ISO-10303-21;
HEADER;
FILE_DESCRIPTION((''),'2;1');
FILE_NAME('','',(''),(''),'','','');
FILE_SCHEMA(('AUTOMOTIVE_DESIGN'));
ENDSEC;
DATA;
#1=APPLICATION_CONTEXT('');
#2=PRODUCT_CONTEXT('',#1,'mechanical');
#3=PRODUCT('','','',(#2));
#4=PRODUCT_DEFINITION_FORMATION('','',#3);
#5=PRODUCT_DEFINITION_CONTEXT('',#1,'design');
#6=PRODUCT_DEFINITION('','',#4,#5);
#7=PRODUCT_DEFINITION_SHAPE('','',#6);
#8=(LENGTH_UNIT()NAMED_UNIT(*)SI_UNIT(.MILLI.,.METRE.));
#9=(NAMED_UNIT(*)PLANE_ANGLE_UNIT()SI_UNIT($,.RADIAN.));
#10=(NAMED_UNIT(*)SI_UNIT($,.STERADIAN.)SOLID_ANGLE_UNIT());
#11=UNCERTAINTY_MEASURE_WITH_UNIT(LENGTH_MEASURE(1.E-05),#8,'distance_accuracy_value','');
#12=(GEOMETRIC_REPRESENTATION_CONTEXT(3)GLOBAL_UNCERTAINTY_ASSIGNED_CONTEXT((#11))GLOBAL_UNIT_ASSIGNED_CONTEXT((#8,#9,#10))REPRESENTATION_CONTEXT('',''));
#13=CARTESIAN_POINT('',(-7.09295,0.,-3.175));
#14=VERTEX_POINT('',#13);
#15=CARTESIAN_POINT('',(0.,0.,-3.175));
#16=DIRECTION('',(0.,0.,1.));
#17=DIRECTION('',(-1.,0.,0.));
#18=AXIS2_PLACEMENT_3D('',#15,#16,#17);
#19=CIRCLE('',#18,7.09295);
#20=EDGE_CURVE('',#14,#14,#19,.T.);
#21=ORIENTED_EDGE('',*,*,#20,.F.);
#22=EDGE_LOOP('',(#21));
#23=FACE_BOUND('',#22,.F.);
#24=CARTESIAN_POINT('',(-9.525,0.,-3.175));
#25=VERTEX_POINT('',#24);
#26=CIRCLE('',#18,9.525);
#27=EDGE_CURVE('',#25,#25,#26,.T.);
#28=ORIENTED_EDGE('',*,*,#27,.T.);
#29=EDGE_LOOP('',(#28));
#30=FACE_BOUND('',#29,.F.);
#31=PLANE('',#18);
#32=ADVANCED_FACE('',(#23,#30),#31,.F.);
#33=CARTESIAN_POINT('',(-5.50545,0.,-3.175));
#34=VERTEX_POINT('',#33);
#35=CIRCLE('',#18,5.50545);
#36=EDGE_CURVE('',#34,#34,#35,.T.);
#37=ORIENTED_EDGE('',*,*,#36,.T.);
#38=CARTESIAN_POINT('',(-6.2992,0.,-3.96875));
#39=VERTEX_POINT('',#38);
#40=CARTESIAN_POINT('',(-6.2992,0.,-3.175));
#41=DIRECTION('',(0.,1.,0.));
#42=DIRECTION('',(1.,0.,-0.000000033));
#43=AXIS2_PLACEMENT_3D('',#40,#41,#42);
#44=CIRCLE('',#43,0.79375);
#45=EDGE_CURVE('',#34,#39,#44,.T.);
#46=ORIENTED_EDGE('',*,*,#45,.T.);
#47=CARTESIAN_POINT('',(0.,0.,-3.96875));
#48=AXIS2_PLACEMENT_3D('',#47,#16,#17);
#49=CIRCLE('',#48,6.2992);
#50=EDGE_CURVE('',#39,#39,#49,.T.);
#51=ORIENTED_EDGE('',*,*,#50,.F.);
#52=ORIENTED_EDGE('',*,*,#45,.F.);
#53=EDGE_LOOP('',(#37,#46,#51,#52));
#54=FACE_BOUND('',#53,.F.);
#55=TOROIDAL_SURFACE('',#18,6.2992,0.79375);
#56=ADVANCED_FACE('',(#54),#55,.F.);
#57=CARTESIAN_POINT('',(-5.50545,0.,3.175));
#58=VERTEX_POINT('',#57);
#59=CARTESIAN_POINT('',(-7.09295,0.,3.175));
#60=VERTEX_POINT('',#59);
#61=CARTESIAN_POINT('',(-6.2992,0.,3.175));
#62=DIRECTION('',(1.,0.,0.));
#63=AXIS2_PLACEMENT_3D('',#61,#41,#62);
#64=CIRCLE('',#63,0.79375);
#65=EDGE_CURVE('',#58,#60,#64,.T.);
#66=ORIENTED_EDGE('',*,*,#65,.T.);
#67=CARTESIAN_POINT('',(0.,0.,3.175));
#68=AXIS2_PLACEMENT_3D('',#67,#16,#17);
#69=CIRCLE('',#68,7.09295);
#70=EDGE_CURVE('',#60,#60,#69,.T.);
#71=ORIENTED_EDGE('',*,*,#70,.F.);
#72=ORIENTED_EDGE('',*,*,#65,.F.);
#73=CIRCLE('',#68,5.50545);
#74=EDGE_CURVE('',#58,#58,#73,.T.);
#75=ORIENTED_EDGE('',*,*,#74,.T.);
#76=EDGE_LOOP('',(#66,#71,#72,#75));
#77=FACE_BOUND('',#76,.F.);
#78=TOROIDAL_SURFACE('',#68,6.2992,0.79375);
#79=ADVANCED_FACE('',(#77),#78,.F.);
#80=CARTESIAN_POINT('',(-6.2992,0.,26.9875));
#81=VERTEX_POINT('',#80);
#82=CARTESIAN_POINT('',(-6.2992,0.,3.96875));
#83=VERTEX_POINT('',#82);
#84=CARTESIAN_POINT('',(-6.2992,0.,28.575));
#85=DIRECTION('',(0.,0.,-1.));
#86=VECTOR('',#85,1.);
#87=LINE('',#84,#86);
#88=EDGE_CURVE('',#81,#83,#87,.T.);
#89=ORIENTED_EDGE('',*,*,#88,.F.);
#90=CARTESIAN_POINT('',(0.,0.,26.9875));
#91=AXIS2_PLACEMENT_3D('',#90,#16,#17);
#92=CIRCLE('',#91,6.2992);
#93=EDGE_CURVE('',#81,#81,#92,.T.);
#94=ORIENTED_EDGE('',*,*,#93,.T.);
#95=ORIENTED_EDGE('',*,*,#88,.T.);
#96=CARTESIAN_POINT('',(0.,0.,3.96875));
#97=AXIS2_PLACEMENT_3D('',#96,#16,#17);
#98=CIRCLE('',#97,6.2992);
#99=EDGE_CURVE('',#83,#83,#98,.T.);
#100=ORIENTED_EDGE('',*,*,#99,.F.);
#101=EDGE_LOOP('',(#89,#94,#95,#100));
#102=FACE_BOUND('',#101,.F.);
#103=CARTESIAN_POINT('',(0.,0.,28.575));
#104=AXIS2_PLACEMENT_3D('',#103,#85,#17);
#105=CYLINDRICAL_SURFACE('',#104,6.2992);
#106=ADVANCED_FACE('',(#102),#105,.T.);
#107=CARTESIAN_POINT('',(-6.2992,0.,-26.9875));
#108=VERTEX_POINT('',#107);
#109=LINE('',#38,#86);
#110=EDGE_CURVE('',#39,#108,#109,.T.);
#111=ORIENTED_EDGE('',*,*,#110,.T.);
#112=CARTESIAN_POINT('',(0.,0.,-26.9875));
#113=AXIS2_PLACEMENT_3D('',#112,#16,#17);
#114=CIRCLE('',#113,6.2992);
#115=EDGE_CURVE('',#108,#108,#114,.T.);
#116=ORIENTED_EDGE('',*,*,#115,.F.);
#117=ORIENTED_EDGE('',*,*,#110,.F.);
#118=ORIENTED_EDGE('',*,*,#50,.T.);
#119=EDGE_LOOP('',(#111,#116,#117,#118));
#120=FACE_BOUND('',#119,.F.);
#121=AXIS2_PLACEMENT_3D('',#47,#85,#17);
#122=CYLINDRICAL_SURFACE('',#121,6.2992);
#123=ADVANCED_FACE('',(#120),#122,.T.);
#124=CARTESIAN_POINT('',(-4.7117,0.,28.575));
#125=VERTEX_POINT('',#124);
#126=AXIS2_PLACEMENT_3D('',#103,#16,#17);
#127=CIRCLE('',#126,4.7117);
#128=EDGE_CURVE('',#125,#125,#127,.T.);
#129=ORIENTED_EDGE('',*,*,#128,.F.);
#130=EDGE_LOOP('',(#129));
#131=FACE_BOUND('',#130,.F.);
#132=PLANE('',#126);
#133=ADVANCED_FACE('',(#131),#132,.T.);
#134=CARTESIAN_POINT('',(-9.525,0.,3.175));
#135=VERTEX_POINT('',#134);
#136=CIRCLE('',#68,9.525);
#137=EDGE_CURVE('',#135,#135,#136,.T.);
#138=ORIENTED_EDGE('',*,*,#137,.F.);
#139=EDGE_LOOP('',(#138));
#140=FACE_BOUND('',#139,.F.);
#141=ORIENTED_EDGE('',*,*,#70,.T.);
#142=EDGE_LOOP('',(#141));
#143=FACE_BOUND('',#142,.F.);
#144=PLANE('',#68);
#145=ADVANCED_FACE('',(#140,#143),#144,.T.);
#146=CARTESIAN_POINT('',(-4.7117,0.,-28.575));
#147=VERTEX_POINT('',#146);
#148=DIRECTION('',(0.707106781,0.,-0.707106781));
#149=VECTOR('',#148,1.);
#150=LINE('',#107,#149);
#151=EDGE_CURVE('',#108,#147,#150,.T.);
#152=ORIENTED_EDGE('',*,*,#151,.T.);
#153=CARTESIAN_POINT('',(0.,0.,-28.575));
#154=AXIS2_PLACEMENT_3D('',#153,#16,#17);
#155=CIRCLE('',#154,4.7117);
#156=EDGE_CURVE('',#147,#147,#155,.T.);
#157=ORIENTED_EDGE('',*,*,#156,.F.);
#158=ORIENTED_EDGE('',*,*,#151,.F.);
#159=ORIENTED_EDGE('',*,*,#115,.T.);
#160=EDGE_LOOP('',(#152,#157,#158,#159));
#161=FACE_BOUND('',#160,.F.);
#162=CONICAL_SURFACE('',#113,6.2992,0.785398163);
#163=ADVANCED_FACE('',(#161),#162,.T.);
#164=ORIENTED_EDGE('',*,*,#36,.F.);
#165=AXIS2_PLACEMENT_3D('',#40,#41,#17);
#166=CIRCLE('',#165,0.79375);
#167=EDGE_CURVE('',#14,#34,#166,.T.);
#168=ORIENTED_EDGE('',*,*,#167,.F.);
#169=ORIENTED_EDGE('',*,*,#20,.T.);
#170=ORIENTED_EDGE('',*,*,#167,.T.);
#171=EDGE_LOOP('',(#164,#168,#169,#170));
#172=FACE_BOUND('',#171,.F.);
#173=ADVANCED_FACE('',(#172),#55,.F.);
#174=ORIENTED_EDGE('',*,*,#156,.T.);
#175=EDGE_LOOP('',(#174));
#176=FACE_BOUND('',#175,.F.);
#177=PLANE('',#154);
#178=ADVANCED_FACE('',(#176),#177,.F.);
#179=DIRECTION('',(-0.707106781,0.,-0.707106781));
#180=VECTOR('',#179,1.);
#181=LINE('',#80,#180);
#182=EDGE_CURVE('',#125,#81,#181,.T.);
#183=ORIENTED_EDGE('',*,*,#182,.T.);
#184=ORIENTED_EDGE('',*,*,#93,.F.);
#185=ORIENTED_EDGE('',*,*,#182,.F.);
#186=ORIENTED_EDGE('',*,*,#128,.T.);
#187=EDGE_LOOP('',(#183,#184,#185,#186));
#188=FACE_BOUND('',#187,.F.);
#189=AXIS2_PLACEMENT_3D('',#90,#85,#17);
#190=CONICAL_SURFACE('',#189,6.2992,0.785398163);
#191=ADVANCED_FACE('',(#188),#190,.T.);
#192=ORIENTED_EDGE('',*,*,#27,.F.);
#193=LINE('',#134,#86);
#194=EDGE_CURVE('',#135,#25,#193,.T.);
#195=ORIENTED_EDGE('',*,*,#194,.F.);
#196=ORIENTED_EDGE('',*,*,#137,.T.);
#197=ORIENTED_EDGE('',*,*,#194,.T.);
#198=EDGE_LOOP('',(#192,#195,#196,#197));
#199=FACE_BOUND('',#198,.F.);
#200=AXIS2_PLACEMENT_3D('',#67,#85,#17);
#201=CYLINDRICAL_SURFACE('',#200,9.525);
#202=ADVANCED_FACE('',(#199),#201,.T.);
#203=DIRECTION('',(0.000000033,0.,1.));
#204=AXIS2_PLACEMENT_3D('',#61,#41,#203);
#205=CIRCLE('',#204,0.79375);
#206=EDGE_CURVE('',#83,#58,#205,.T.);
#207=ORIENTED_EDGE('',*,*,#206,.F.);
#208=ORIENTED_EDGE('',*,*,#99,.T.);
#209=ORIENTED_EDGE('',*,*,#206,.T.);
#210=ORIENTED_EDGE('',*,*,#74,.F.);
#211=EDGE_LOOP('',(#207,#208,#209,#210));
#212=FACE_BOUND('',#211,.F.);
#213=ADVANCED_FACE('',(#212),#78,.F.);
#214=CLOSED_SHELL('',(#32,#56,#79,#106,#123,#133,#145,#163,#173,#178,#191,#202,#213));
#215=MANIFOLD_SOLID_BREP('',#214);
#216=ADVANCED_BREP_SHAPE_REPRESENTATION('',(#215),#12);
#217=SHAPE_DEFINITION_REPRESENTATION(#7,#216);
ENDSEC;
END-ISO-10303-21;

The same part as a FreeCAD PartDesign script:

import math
import FreeCAD as App
import Part
import Sketcher
from FreeCAD import Vector
Q = App.Units.Quantity


def edges_at(feature, points):
    """Names of the edges that pass closest to the given points."""
    edges = feature.Shape.Edges
    near = lambda p: min(range(len(edges)), key=lambda i: edges[i].distToShape(Part.Vertex(*p))[0])
    return sorted({f"Edge{near(p) + 1}" for p in points})

doc = App.newDocument("Part")
body = doc.addObject("PartDesign::Body", "Body")

# Sketch on XZ plane
sketch1 = body.newObject("Sketcher::SketchObject", "Sketch")
sketch1.AttachmentSupport = (doc.getObject("XZ_Plane"), [""])
sketch1.MapMode = "FlatFace"
sketch1.addGeometry(Part.LineSegment(Vector(-9.5, 3.2, 0), Vector(-9.5, -3.2, 0)), False)
sketch1.addGeometry(Part.LineSegment(Vector(-9.5, -3.2, 0), Vector(-7.1, -3.2, 0)), False)
sketch1.addGeometry(Part.ArcOfCircle(Part.Circle(Vector(-6.3, -3.2, 0), Vector(0, 0, 1), 0.8), math.radians(0), math.radians(180)), False)
sketch1.addGeometry(Part.ArcOfCircle(Part.Circle(Vector(-6.3, -3.2, 0), Vector(0, 0, 1), 0.8), math.radians(-90), math.radians(0)), False)
sketch1.addGeometry(Part.LineSegment(Vector(-6.3, -4, 0), Vector(-6.3, -28.6, 0)), False)
sketch1.addGeometry(Part.LineSegment(Vector(-6.3, -28.6, 0), Vector(0, -28.6, 0)), False)
sketch1.addGeometry(Part.LineSegment(Vector(0, -28.6, 0), Vector(0, 28.6, 0)), False)
sketch1.addGeometry(Part.LineSegment(Vector(0, 28.6, 0), Vector(-6.3, 28.6, 0)), False)
sketch1.addGeometry(Part.LineSegment(Vector(-6.3, 28.6, 0), Vector(-6.3, 4, 0)), False)
sketch1.addGeometry(Part.ArcOfCircle(Part.Circle(Vector(-6.3, 3.2, 0), Vector(0, 0, 1), 0.8), math.radians(0), math.radians(90)), False)
sketch1.addGeometry(Part.ArcOfCircle(Part.Circle(Vector(-6.3, 3.2, 0), Vector(0, 0, 1), 0.8), math.radians(180), math.radians(360)), False)
sketch1.addGeometry(Part.LineSegment(Vector(-7.1, 3.2, 0), Vector(-9.5, 3.2, 0)), False)
sketch1.addConstraint(Sketcher.Constraint("Coincident", 0, 2, 1, 1))
sketch1.addConstraint(Sketcher.Constraint("Coincident", 1, 2, 2, 2))
sketch1.addConstraint(Sketcher.Constraint("Tangent", 2, 1, 3, 2))
sketch1.addConstraint(Sketcher.Constraint("Coincident", 3, 1, 4, 1))
sketch1.addConstraint(Sketcher.Constraint("Coincident", 4, 2, 5, 1))
sketch1.addConstraint(Sketcher.Constraint("Coincident", 5, 2, 6, 1))
sketch1.addConstraint(Sketcher.Constraint("Coincident", 6, 2, 7, 1))
sketch1.addConstraint(Sketcher.Constraint("Coincident", 7, 2, 8, 1))
sketch1.addConstraint(Sketcher.Constraint("Coincident", 8, 2, 9, 2))
sketch1.addConstraint(Sketcher.Constraint("Tangent", 9, 1, 10, 2))
sketch1.addConstraint(Sketcher.Constraint("Coincident", 10, 1, 11, 1))
sketch1.addConstraint(Sketcher.Constraint("Coincident", 11, 2, 0, 1))
sketch1.addConstraint(Sketcher.Constraint("Vertical", 0))
sketch1.addConstraint(Sketcher.Constraint("Horizontal", 1))
sketch1.addConstraint(Sketcher.Constraint("Vertical", 4))
sketch1.addConstraint(Sketcher.Constraint("Horizontal", 5))
sketch1.addConstraint(Sketcher.Constraint("Vertical", 6))
sketch1.addConstraint(Sketcher.Constraint("Horizontal", 7))
sketch1.addConstraint(Sketcher.Constraint("Vertical", 8))
sketch1.addConstraint(Sketcher.Constraint("Horizontal", 11))
sketch1.addConstraint(Sketcher.Constraint("Equal", 2, 3))
sketch1.addConstraint(Sketcher.Constraint("Equal", 3, 9))
sketch1.addConstraint(Sketcher.Constraint("Equal", 9, 10))
sketch1.addConstraint(Sketcher.Constraint("Symmetric", 5, 2, 6, 2, -1, 1))
sketch1.addConstraint(Sketcher.Constraint("Symmetric", 2, 3, 9, 3, -1))
sketch1.addConstraint(Sketcher.Constraint("Horizontal", 3, 3, 0, 2))
sketch1.addConstraint(Sketcher.Constraint("Horizontal", 1, 2, 2, 1))
sketch1.addConstraint(Sketcher.Constraint("Horizontal", 10, 3, 9, 1))
sketch1.addConstraint(Sketcher.Constraint("Horizontal", 9, 1, 10, 1))
sketch1.addConstraint(Sketcher.Constraint("Vertical", 10, 3, 3, 1))
sketch1.addConstraint(Sketcher.Constraint("Vertical", 4, 2, 7, 2))
sketch1.addConstraint(Sketcher.Constraint("Radius", 2, Q("0.03125 in")))
sketch1.addConstraint(Sketcher.Constraint("DistanceY", 4, 2, 2, 3, Q("1 in")))
sketch1.addConstraint(Sketcher.Constraint("DistanceY", 0, 2, 0, 1, Q("0.25 in")))
sketch1.addConstraint(Sketcher.Constraint("DistanceX", 5, 1, 5, 2, Q("0.248 in")))
sketch1.addConstraint(Sketcher.Constraint("DistanceX", 0, 2, -1, 1, Q("0.375 in")))
revolution = body.newObject("PartDesign::Revolution", "Revolution")
revolution.Profile = sketch1
revolution.ReferenceAxis = (sketch1, ["V_Axis"])
revolution.Angle = 360
doc.recompute()

chamfer = body.newObject("PartDesign::Chamfer", "Chamfer")
chamfer.Base = (revolution, edges_at(revolution, [(6.299, 0, 28.575), (6.299, 0, -28.575)]))
chamfer.Size = Q("0.0625 in")

doc.recompute()
